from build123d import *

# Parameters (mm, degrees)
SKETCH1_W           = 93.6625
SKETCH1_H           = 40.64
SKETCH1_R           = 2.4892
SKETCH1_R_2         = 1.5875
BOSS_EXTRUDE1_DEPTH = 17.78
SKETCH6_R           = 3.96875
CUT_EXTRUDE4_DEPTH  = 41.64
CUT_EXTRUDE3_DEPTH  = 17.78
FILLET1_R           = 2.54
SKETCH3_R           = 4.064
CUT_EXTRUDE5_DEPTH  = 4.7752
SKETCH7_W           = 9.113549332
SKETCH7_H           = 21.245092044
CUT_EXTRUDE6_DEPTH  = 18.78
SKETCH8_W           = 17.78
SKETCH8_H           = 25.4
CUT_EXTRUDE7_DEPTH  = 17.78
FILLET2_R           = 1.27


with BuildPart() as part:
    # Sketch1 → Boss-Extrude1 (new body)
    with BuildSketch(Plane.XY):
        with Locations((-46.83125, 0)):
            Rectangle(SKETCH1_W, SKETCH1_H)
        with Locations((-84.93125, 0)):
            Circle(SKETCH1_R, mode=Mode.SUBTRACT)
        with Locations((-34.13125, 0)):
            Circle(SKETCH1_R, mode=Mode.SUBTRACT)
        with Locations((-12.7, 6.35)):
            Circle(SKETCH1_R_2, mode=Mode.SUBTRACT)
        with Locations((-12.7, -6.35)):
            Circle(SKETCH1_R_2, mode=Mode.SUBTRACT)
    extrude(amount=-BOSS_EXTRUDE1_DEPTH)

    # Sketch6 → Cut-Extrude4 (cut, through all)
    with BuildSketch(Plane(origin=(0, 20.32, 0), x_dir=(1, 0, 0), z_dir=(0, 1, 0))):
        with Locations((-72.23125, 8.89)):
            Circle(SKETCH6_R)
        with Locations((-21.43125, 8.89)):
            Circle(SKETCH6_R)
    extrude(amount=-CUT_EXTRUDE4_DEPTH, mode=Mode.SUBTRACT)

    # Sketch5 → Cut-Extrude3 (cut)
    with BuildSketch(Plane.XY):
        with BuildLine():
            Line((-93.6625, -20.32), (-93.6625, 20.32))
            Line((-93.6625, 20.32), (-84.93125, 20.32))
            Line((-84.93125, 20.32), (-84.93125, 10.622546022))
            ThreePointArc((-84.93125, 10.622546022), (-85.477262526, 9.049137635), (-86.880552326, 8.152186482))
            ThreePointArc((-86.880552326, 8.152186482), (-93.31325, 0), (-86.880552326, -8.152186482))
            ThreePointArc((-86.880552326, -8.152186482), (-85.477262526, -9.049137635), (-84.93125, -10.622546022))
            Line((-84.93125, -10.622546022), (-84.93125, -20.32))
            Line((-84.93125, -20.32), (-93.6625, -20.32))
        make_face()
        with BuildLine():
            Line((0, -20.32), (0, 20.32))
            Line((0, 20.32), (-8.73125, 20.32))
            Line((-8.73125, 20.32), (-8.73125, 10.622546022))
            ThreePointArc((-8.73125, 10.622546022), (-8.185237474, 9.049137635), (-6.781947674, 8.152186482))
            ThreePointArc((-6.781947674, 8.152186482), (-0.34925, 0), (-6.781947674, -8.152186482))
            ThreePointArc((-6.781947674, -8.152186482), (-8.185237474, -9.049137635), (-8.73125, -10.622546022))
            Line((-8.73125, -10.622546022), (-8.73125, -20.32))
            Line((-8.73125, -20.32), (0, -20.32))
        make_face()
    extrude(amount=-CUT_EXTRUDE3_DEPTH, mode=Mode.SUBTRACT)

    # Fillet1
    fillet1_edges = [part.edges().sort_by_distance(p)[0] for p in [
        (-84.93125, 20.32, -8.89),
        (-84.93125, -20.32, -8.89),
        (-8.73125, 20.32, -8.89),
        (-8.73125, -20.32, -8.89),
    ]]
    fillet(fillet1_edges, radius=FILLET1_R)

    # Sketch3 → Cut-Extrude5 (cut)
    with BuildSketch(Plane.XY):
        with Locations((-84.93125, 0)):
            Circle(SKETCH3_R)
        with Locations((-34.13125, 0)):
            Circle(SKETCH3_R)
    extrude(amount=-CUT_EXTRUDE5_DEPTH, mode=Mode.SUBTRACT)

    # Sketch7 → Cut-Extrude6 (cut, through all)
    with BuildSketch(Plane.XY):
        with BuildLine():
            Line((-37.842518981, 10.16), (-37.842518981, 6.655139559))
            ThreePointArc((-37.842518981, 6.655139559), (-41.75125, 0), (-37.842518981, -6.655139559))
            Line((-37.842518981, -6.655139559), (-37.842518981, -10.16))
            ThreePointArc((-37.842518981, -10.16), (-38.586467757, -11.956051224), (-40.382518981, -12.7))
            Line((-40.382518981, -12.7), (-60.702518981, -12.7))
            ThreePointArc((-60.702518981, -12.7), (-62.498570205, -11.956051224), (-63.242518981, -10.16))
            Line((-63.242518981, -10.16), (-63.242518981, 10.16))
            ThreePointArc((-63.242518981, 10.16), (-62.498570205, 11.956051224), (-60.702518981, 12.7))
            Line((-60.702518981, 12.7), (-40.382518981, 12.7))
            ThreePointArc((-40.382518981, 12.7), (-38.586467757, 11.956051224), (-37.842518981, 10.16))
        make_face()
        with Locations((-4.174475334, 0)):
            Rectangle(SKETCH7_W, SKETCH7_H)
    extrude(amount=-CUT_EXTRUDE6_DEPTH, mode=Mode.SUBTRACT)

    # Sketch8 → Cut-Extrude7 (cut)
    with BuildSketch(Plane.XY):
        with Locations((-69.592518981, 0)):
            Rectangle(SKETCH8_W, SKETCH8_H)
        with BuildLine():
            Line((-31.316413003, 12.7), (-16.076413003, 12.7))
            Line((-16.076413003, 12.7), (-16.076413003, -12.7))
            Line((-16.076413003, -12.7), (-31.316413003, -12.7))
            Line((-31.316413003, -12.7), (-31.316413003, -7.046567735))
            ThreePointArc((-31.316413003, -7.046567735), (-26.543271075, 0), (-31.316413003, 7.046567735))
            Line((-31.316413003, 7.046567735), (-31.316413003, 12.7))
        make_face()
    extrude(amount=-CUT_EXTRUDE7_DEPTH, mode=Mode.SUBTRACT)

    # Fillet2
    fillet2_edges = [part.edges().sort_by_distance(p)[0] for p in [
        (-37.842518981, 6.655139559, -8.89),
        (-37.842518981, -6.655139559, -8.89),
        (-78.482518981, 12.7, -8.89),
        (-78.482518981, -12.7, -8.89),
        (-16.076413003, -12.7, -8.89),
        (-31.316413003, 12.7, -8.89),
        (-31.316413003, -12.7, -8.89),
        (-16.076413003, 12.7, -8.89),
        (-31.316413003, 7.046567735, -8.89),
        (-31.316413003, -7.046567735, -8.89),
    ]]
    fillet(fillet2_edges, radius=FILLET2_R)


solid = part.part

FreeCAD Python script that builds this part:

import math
import FreeCAD as App
import Part
import Sketcher
Q = App.Units.Quantity


def edges_at(feature, points):
    """Names of the edges that pass closest to the given points."""
    edges = feature.Shape.Edges
    near = lambda p: min(range(len(edges)), key=lambda i: edges[i].distToShape(Part.Vertex(*p))[0])
    return sorted({f"Edge{near(p) + 1}" for p in points})


def add_polygon(sketch, points):
    """Adds a closed chain of lines whose ends are joined by coincident constraints."""
    first, n = sketch.GeometryCount, len(points)
    for a, b in zip(points, points[1:] + points[:1]):
        sketch.addGeometry(Part.LineSegment(App.Vector(*a, 0), App.Vector(*b, 0)), False)
    for i in range(n):
        sketch.addConstraint(Sketcher.Constraint("Coincident", first + i, 2, first + (i + 1) % n, 1))

doc = App.newDocument("Part")
body = doc.addObject("PartDesign::Body", "Body")

sketch1 = doc.addObject("Sketcher::SketchObject", "Sketch")
body.addObject(sketch1)
sketch1.AttachmentSupport = (doc.XY_Plane, [""])
sketch1.MapMode = "FlatFace"
add_polygon(sketch1, [(-93.7, 20.3), (-93.7, -20.3), (0, -20.3), (0, 20.3)])
sketch1.addGeometry(Part.Circle(App.Vector(-12.7, -6.3, 0), App.Vector(0, 0, 1), 1.6), False)
sketch1.addGeometry(Part.Circle(App.Vector(-84.9, 0, 0), App.Vector(0, 0, 1), 2.5), False)
sketch1.addGeometry(Part.Circle(App.Vector(-34.1, 0, 0), App.Vector(0, 0, 1), 2.5), False)
sketch1.addGeometry(Part.Circle(App.Vector(-12.7, 6.3, 0), App.Vector(0, 0, 1), 1.6), False)
sketch1.addConstraint([
    Sketcher.Constraint("Vertical", 0),
    Sketcher.Constraint("Horizontal", 1),
    Sketcher.Constraint("Vertical", 2),
    Sketcher.Constraint("Horizontal", 3),
    Sketcher.Constraint("Equal", 5, 6),
    Sketcher.Constraint("Equal", 4, 7),
    Sketcher.Constraint("Symmetric", 1, 2, 2, 2, -1, 1),
    Sketcher.Constraint("Symmetric", 4, 3, 7, 3, -1),
    Sketcher.Constraint("PointOnObject", 5, 3, -1),
    Sketcher.Constraint("PointOnObject", 6, 3, -1),
    Sketcher.Constraint("Diameter", 4, Q("0.125 in")),
    Sketcher.Constraint("Diameter", 5, Q("0.196 in")),
    Sketcher.Constraint("DistanceY", 0, 2, 0, 1, Q("1.6 in")),
    Sketcher.Constraint("DistanceX", 5, 3, 6, 3, Q("2 in")),
    Sketcher.Constraint("DistanceX", 4, 3, -1, 1, Q("0.5 in")),
    Sketcher.Constraint("DistanceY", 4, 3, 7, 3, Q("0.5 in")),
    Sketcher.Constraint("DistanceX", 1, 1, 1, 2, Q("3.6875 in")),
    Sketcher.Constraint("DistanceX", 5, 3, -1, 1, Q("3.34375 in")),
])
pad1 = doc.addObject("PartDesign::Pad", "Pad")
body.addObject(pad1)
pad1.Profile = sketch1
pad1.Length = Q("0.7 in")
pad1.Reversed = True

sketch2 = doc.addObject("Sketcher::SketchObject", "Sketch001")
body.addObject(sketch2)
sketch2.AttachmentSupport = (doc.XZ_Plane, [""])
sketch2.MapMode = "FlatFace"
sketch2.AttachmentOffset = App.Placement(App.Vector(0, 0, -0.8 * 25.4), App.Rotation())
sketch2.addGeometry([
    Part.Circle(App.Vector(-72.2, -8.9, 0), App.Vector(0, 0, 1), 4),
    Part.Circle(App.Vector(-21.4, -8.9, 0), App.Vector(0, 0, 1), 4),
], False)
sketch2.addConstraint([
    Sketcher.Constraint("Equal", 0, 1),
    Sketcher.Constraint("Horizontal", 0, 3, 1, 3),
    Sketcher.Constraint("Diameter", 0, Q("0.3125 in")),
    Sketcher.Constraint("DistanceX", 0, 3, 1, 3, Q("2 in")),
    Sketcher.Constraint("DistanceY", 0, 3, -1, 1, Q("0.35 in")),
    Sketcher.Constraint("DistanceX", 0, 3, -1, 1, Q("2.84375 in")),
])
pocket1 = doc.addObject("PartDesign::Pocket", "Pocket")
body.addObject(pocket1)
pocket1.Profile = sketch2
pocket1.Type = "ThroughAll"
pocket1.Reversed = True

sketch3 = doc.addObject("Sketcher::SketchObject", "Sketch002")
body.addObject(sketch3)
sketch3.AttachmentSupport = (doc.XY_Plane, [""])
sketch3.MapMode = "FlatFace"
sketch3.addGeometry([
    Part.LineSegment(App.Vector(-93.7, 20.3, 0), App.Vector(-93.7, -20.3, 0)),
    Part.LineSegment(App.Vector(-93.7, -20.3, 0), App.Vector(-84.9, -20.3, 0)),
    Part.LineSegment(App.Vector(-84.9, -20.3, 0), App.Vector(-84.9, -10.6, 0)),
    Part.ArcOfCircle(Part.Circle(App.Vector(-87.5, -10.6, 0), App.Vector(0, 0, 1), 2.5), math.radians(0), math.radians(77)),
    Part.ArcOfCircle(Part.Circle(App.Vector(-84.9, 0, 0), App.Vector(0, 0, 1), 8.4), math.radians(103), math.radians(257)),
    Part.ArcOfCircle(Part.Circle(App.Vector(-87.5, 10.6, 0), App.Vector(0, 0, 1), 2.5), math.radians(-77), math.radians(0)),
    Part.LineSegment(App.Vector(-84.9, 10.6, 0), App.Vector(-84.9, 20.3, 0)),
    Part.LineSegment(App.Vector(-84.9, 20.3, 0), App.Vector(-93.7, 20.3, 0)),
    Part.LineSegment(App.Vector(0, -20.3, 0), App.Vector(0, 20.3, 0)),
    Part.LineSegment(App.Vector(0, 20.3, 0), App.Vector(-8.7, 20.3, 0)),
    Part.LineSegment(App.Vector(-8.7, 20.3, 0), App.Vector(-8.7, 10.6, 0)),
    Part.ArcOfCircle(Part.Circle(App.Vector(-6.2, 10.6, 0), App.Vector(0, 0, 1), 2.5), math.radians(-180), math.radians(-103)),
    Part.ArcOfCircle(Part.Circle(App.Vector(-8.7, 0, 0), App.Vector(0, 0, 1), 8.4), math.radians(-77), math.radians(77)),
    Part.ArcOfCircle(Part.Circle(App.Vector(-6.2, -10.6, 0), App.Vector(0, 0, 1), 2.5), math.radians(103), math.radians(180)),
    Part.LineSegment(App.Vector(-8.7, -10.6, 0), App.Vector(-8.7, -20.3, 0)),
    Part.LineSegment(App.Vector(-8.7, -20.3, 0), App.Vector(0, -20.3, 0)),
], False)
sketch3.addConstraint([
    Sketcher.Constraint("Coincident", 0, 2, 1, 1),
    Sketcher.Constraint("Coincident", 1, 2, 2, 1),
    Sketcher.Constraint("Tangent", 2, 2, 3, 1),
    Sketcher.Constraint("Tangent", 3, 2, 4, 2),
    Sketcher.Constraint("Tangent", 4, 1, 5, 1),
    Sketcher.Constraint("Tangent", 5, 2, 6, 1),
    Sketcher.Constraint("Coincident", 6, 2, 7, 1),
    Sketcher.Constraint("Coincident", 7, 2, 0, 1),
    Sketcher.Constraint("Coincident", 8, 2, 9, 1),
    Sketcher.Constraint("Coincident", 9, 2, 10, 1),
    Sketcher.Constraint("Tangent", 10, 2, 11, 1),
    Sketcher.Constraint("Tangent", 11, 2, 12, 2),
    Sketcher.Constraint("Tangent", 12, 1, 13, 1),
    Sketcher.Constraint("Tangent", 13, 2, 14, 1),
    Sketcher.Constraint("Coincident", 14, 2, 15, 1),
    Sketcher.Constraint("Coincident", 15, 2, 8, 1),
    Sketcher.Constraint("Vertical", 0),
    Sketcher.Constraint("Horizontal", 1),
    Sketcher.Constraint("Vertical", 2),
    Sketcher.Constraint("Vertical", 6),
    Sketcher.Constraint("Horizontal", 7),
    Sketcher.Constraint("Vertical", 8),
    Sketcher.Constraint("Horizontal", 9),
    Sketcher.Constraint("Vertical", 10),
    Sketcher.Constraint("Vertical", 14),
    Sketcher.Constraint("Horizontal", 15),
    Sketcher.Constraint("Equal", 3, 5),
    Sketcher.Constraint("Equal", 5, 11),
    Sketcher.Constraint("Equal", 4, 12),
    Sketcher.Constraint("Equal", 11, 13),
    Sketcher.Constraint("Symmetric", 8, 2, 15, 2, -1, 1),
    Sketcher.Constraint("Symmetric", 3, 3, 5, 3, -1),
    Sketcher.Constraint("Symmetric", 11, 3, 13, 3, -1),
    Sketcher.Constraint("Horizontal", 5, 3, 11, 3),
    Sketcher.Constraint("Horizontal", 7, 2, 8, 2),
    Sketcher.Constraint("Horizontal", 1, 2, 14, 2),
    Sketcher.Constraint("Vertical", 4, 3, 1, 2),
    Sketcher.Constraint("Equal", 7, 9),
    Sketcher.Constraint("Radius", 3, Q("0.1 in")),
    Sketcher.Constraint("Radius", 4, Q("0.33 in")),
    Sketcher.Constraint("DistanceY", 0, 2, 0, 1, Q("1.6 in")),
    Sketcher.Constraint("DistanceX", 4, 3, 12, 3, Q("3 in")),
    Sketcher.Constraint("DistanceX", 1, 1, 1, 2, Q("0.34375 in")),
])
pocket2 = doc.addObject("PartDesign::Pocket", "Pocket001")
body.addObject(pocket2)
pocket2.Profile = sketch3
pocket2.Length = Q("0.7 in")
doc.recompute()

fillet = doc.addObject("PartDesign::Fillet", "Fillet")
body.addObject(fillet)
fillet.Base = (pocket2, edges_at(pocket2, [
    (-84.931, 20.32, -8.89),
    (-84.931, -20.32, -8.89),
    (-8.731, 20.32, -8.89),
    (-8.731, -20.32, -8.89),
]))
fillet.Radius = Q("0.1 in")

sketch4 = doc.addObject("Sketcher::SketchObject", "Sketch003")
body.addObject(sketch4)
sketch4.AttachmentSupport = (doc.XY_Plane, [""])
sketch4.MapMode = "FlatFace"
sketch4.addGeometry([
    Part.Circle(App.Vector(-84.9, 0, 0), App.Vector(0, 0, 1), 4.1),
    Part.Circle(App.Vector(-34.1, 0, 0), App.Vector(0, 0, 1), 4.1),
], False)
sketch4.addConstraint([
    Sketcher.Constraint("Equal", 0, 1),
    Sketcher.Constraint("PointOnObject", 0, 3, -1),
    Sketcher.Constraint("PointOnObject", 1, 3, -1),
    Sketcher.Constraint("Diameter", 0, Q("0.32 in")),
    Sketcher.Constraint("DistanceX", 0, 3, 1, 3, Q("2 in")),
    Sketcher.Constraint("DistanceX", 0, 3, -1, 1, Q("3.34375 in")),
])
pocket3 = doc.addObject("PartDesign::Pocket", "Pocket002")
body.addObject(pocket3)
pocket3.Profile = sketch4
pocket3.Length = Q("0.188 in")

sketch5 = doc.addObject("Sketcher::SketchObject", "Sketch004")
body.addObject(sketch5)
sketch5.AttachmentSupport = (doc.XY_Plane, [""])
sketch5.MapMode = "FlatFace"
sketch5.addGeometry(Part.LineSegment(App.Vector(-37.8, 6.7, 0), App.Vector(-37.8, 10.2, 0)), False)
sketch5.addGeometry(Part.ArcOfCircle(Part.Circle(App.Vector(-40.4, 10.2, 0), App.Vector(0, 0, 1), 2.5), math.radians(0), math.radians(90)), False)
sketch5.addGeometry(Part.LineSegment(App.Vector(-40.4, 12.7, 0), App.Vector(-60.7, 12.7, 0)), False)
sketch5.addGeometry(Part.ArcOfCircle(Part.Circle(App.Vector(-60.7, 10.2, 0), App.Vector(0, 0, 1), 2.5), math.radians(90), math.radians(180)), False)
sketch5.addGeometry(Part.LineSegment(App.Vector(-63.2, 10.2, 0), App.Vector(-63.2, -10.2, 0)), False)
sketch5.addGeometry(Part.ArcOfCircle(Part.Circle(App.Vector(-60.7, -10.2, 0), App.Vector(0, 0, 1), 2.5), math.radians(-180), math.radians(-90)), False)
sketch5.addGeometry(Part.LineSegment(App.Vector(-60.7, -12.7, 0), App.Vector(-40.4, -12.7, 0)), False)
sketch5.addGeometry(Part.ArcOfCircle(Part.Circle(App.Vector(-40.4, -10.2, 0), App.Vector(0, 0, 1), 2.5), math.radians(-90), math.radians(0)), False)
sketch5.addGeometry(Part.LineSegment(App.Vector(-37.8, -10.2, 0), App.Vector(-37.8, -6.7, 0)), False)
sketch5.addGeometry(Part.ArcOfCircle(Part.Circle(App.Vector(-34.1, 0, 0), App.Vector(0, 0, 1), 7.6), math.radians(119), math.radians(241)), False)
add_polygon(sketch5, [(-8.7, 10.6), (-8.7, -10.6), (0.4, -10.6), (0.4, 10.6)])
sketch5.addConstraint([
    Sketcher.Constraint("Tangent", 0, 2, 1, 1),
    Sketcher.Constraint("Tangent", 1, 2, 2, 1),
    Sketcher.Constraint("Tangent", 2, 2, 3, 1),
    Sketcher.Constraint("Tangent", 3, 2, 4, 1),
    Sketcher.Constraint("Tangent", 4, 2, 5, 1),
    Sketcher.Constraint("Tangent", 5, 2, 6, 1),
    Sketcher.Constraint("Tangent", 6, 2, 7, 1),
    Sketcher.Constraint("Tangent", 7, 2, 8, 1),
    Sketcher.Constraint("Coincident", 8, 2, 9, 2),
    Sketcher.Constraint("Coincident", 9, 1, 0, 1),
    Sketcher.Constraint("Vertical", 0),
    Sketcher.Constraint("Horizontal", 2),
    Sketcher.Constraint("Vertical", 4),
    Sketcher.Constraint("Horizontal", 6),
    Sketcher.Constraint("Vertical", 8),
    Sketcher.Constraint("Vertical", 10),
    Sketcher.Constraint("Horizontal", 11),
    Sketcher.Constraint("Vertical", 12),
    Sketcher.Constraint("Horizontal", 13),
    Sketcher.Constraint("Equal", 1, 3),
    Sketcher.Constraint("Equal", 3, 5),
    Sketcher.Constraint("Equal", 5, 7),
    Sketcher.Constraint("Symmetric", 1, 3, 7, 3, -1),
    Sketcher.Constraint("PointOnObject", 9, 3, -1),
    Sketcher.Constraint("Equal", 6, 4),
    Sketcher.Constraint("Radius", 1, Q("0.1 in")),
    Sketcher.Constraint("Radius", 9, Q("0.3 in")),
    Sketcher.Constraint("DistanceX", 2, 2, 2, 1, Q("0.8 in")),
    Sketcher.Constraint("DistanceX", 9, 3, 10, 2, Q("1 in")),
    Sketcher.Constraint("DistanceX", 9, 3, -1, 1, Q("1.34375 in")),
    Sketcher.Constraint("DistanceX", 11, 1, 11, 2, Q("9.113549 mm")),
    Sketcher.Constraint("DistanceY", 0, 1, 0, 2, Q("3.50486 mm")),
    Sketcher.Constraint("DistanceY", 10, 2, 10, 1, Q("21.245092 mm")),
    Sketcher.Constraint("DistanceY", 10, 2, -1, 1, Q("10.622546 mm")),
])
pocket4 = doc.addObject("PartDesign::Pocket", "Pocket003")
body.addObject(pocket4)
pocket4.Profile = sketch5
pocket4.Type = "ThroughAll"

sketch6 = doc.addObject("Sketcher::SketchObject", "Sketch005")
body.addObject(sketch6)
sketch6.AttachmentSupport = (doc.XY_Plane, [""])
sketch6.MapMode = "FlatFace"
add_polygon(sketch6, [(-78, 13), (-78, -13), (-61, -13), (-61, 13)])
sketch6.addGeometry(Part.LineSegment(App.Vector(-16, 13, 0), App.Vector(-31, 13, 0)), False)
sketch6.addGeometry(Part.LineSegment(App.Vector(-31, 13, 0), App.Vector(-31, 7, 0)), False)
sketch6.addGeometry(Part.ArcOfCircle(Part.Circle(App.Vector(-34, 0, 0), App.Vector(0, 0, 1), 8), math.radians(-68), math.radians(68)), False)
sketch6.addGeometry(Part.LineSegment(App.Vector(-31, -7, 0), App.Vector(-31, -13, 0)), False)
sketch6.addGeometry(Part.LineSegment(App.Vector(-31, -13, 0), App.Vector(-16, -13, 0)), False)
sketch6.addGeometry(Part.LineSegment(App.Vector(-16, -13, 0), App.Vector(-16, 13, 0)), False)
sketch6.addConstraint([
    Sketcher.Constraint("Coincident", 4, 2, 5, 1),
    Sketcher.Constraint("Coincident", 5, 2, 6, 2),
    Sketcher.Constraint("Coincident", 6, 1, 7, 1),
    Sketcher.Constraint("Coincident", 7, 2, 8, 1),
    Sketcher.Constraint("Coincident", 8, 2, 9, 1),
    Sketcher.Constraint("Coincident", 9, 2, 4, 1),
    Sketcher.Constraint("Vertical", 0),
    Sketcher.Constraint("Horizontal", 1),
    Sketcher.Constraint("Vertical", 2),
    Sketcher.Constraint("Horizontal", 3),
    Sketcher.Constraint("Horizontal", 4),
    Sketcher.Constraint("Vertical", 5),
    Sketcher.Constraint("Vertical", 7),
    Sketcher.Constraint("Horizontal", 8),
    Sketcher.Constraint("Vertical", 9),
    Sketcher.Constraint("Symmetric", 5, 2, 6, 1, -1),
    Sketcher.Constraint("Horizontal", 3, 2, 4, 2),
    Sketcher.Constraint("Horizontal", 1, 2, 7, 2),
    Sketcher.Constraint("Equal", 5, 7),
    Sketcher.Constraint("DistanceY", 0, 2, 0, 1, Q("1 in")),
    Sketcher.Constraint("DistanceX", 1, 1, 1, 2, Q("0.7 in")),
    Sketcher.Constraint("DistanceX", 4, 2, 4, 1, Q("0.6 in")),
    Sketcher.Constraint("DistanceX", 6, 3, -1, 1, Q("1.34375 in")),
    Sketcher.Constraint("Radius", 6, Q("7.587979 mm")),
    Sketcher.Constraint("DistanceY", 5, 2, 5, 1, Q("5.653432 mm")),
    Sketcher.Constraint("DistanceX", 0, 2, -1, 1, Q("78.482519 mm")),
])
pocket5 = doc.addObject("PartDesign::Pocket", "Pocket004")
body.addObject(pocket5)
pocket5.Profile = sketch6
pocket5.Length = Q("0.7 in")
doc.recompute()

fillet2 = doc.addObject("PartDesign::Fillet", "Fillet001")
body.addObject(fillet2)
fillet2.Base = (pocket5, edges_at(pocket5, [
    (-37.843, 6.655, -8.89),
    (-37.843, -6.655, -8.89),
    (-78.483, 12.7, -8.89),
    (-78.483, -12.7, -8.89),
    (-16.076, -12.7, -8.89),
    (-31.316, 12.7, -8.89),
    (-31.316, -12.7, -8.89),
    (-16.076, 12.7, -8.89),
    (-31.316, 7.047, -8.89),
    (-31.316, -7.047, -8.89),
]))
fillet2.Radius = Q("0.05 in")

doc.recompute()
